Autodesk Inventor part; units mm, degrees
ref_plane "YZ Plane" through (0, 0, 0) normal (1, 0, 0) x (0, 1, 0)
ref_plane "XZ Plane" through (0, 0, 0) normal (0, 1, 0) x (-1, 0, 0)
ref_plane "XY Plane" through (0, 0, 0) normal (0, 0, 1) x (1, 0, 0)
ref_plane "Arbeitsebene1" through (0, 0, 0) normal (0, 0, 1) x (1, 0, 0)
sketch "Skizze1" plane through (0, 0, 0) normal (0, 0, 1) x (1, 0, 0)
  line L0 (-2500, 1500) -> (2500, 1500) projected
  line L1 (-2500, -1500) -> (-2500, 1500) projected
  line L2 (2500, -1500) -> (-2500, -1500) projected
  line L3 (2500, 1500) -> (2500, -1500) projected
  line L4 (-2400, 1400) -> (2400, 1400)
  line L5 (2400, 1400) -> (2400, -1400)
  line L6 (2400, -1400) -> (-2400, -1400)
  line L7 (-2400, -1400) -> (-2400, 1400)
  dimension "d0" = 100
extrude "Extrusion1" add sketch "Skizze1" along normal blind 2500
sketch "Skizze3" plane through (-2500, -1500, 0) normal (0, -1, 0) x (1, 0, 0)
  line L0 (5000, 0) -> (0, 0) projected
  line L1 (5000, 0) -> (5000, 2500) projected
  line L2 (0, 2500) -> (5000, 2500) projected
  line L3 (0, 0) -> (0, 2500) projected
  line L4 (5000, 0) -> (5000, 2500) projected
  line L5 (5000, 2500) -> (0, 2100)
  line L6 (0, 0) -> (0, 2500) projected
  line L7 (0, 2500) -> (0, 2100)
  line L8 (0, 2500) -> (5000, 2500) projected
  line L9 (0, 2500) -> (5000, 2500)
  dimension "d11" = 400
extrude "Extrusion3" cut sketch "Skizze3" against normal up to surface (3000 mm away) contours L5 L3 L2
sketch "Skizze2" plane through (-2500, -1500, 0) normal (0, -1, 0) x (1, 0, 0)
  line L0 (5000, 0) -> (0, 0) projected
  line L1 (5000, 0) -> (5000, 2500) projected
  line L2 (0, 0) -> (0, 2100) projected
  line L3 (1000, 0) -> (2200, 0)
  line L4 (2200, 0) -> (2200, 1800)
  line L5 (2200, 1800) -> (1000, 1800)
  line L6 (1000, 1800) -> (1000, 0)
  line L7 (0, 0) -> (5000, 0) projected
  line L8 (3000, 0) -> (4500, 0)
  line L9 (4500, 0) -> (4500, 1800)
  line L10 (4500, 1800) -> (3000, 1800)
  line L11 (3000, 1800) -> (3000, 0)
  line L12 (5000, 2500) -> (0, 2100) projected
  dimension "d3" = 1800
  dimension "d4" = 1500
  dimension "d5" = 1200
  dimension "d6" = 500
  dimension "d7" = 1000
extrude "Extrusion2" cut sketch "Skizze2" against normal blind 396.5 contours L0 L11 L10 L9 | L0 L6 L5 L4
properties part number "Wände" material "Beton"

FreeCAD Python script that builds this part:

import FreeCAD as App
import Part
import Sketcher
from FreeCAD import Vector
Q = App.Units.Quantity

doc = App.newDocument("Part")
body = doc.addObject("PartDesign::Body", "Body")

# Sketch on XY plane
sketch1 = body.newObject("Sketcher::SketchObject", "Sketch")
sketch1.AttachmentSupport = (doc.getObject("XY_Plane"), [""])
sketch1.MapMode = "FlatFace"
sketch1.addGeometry(Part.LineSegment(Vector(2500, 1500, 0), Vector(-2500, 1500, 0)), False)
sketch1.addGeometry(Part.LineSegment(Vector(-2500, 1500, 0), Vector(-2500, -1500, 0)), False)
sketch1.addGeometry(Part.LineSegment(Vector(-2500, -1500, 0), Vector(2500, -1500, 0)), False)
sketch1.addGeometry(Part.LineSegment(Vector(2500, -1500, 0), Vector(2500, 1500, 0)), False)
sketch1.addGeometry(Part.LineSegment(Vector(-2400, -1400, 0), Vector(-2400, 1400, 0)), False)
sketch1.addGeometry(Part.LineSegment(Vector(-2400, 1400, 0), Vector(2400, 1400, 0)), False)
sketch1.addGeometry(Part.LineSegment(Vector(2400, 1400, 0), Vector(2400, -1400, 0)), False)
sketch1.addGeometry(Part.LineSegment(Vector(2400, -1400, 0), Vector(-2400, -1400, 0)), False)
sketch1.addConstraint(Sketcher.Constraint("Coincident", 0, 2, 1, 1))
sketch1.addConstraint(Sketcher.Constraint("Coincident", 1, 2, 2, 1))
sketch1.addConstraint(Sketcher.Constraint("Coincident", 2, 2, 3, 1))
sketch1.addConstraint(Sketcher.Constraint("Coincident", 3, 2, 0, 1))
sketch1.addConstraint(Sketcher.Constraint("Coincident", 4, 2, 5, 1))
sketch1.addConstraint(Sketcher.Constraint("Coincident", 5, 2, 6, 1))
sketch1.addConstraint(Sketcher.Constraint("Coincident", 6, 2, 7, 1))
sketch1.addConstraint(Sketcher.Constraint("Coincident", 7, 2, 4, 1))
sketch1.addConstraint(Sketcher.Constraint("Horizontal", 0))
sketch1.addConstraint(Sketcher.Constraint("Vertical", 1))
sketch1.addConstraint(Sketcher.Constraint("Horizontal", 2))
sketch1.addConstraint(Sketcher.Constraint("Vertical", 3))
sketch1.addConstraint(Sketcher.Constraint("Vertical", 4))
sketch1.addConstraint(Sketcher.Constraint("Horizontal", 5))
sketch1.addConstraint(Sketcher.Constraint("Vertical", 6))
sketch1.addConstraint(Sketcher.Constraint("Horizontal", 7))
sketch1.addConstraint(Sketcher.Constraint("Symmetric", 0, 2, 2, 2, -1, 1))
sketch1.addConstraint(Sketcher.Constraint("Symmetric", 4, 2, 6, 2, -1, 1))
sketch1.addConstraint(Sketcher.Constraint("DistanceX", 0, 2, 4, 2, Q("100 mm")))
sketch1.addConstraint(Sketcher.Constraint("DistanceY", 4, 2, 0, 2, Q("100 mm")))
sketch1.addConstraint(Sketcher.Constraint("DistanceX", 0, 2, 0, 1, Q("5000 mm")))
sketch1.addConstraint(Sketcher.Constraint("DistanceY", 1, 2, 1, 1, Q("3000 mm")))
pad1 = body.newObject("PartDesign::Pad", "Pad")
pad1.Profile = sketch1
pad1.Length = 2500

# Sketch on XZ plane
sketch2 = body.newObject("Sketcher::SketchObject", "Sketch001")
sketch2.AttachmentSupport = (doc.getObject("XZ_Plane"), [""])
sketch2.MapMode = "FlatFace"
sketch2.AttachmentOffset = App.Placement(Vector(0, 0, 1500), App.Rotation())
sketch2.addGeometry(Part.LineSegment(Vector(-2500, 2100, 0), Vector(2500, 2500, 0)), False)
sketch2.addGeometry(Part.LineSegment(Vector(2500, 2500, 0), Vector(-2500, 2500, 0)), False)
sketch2.addGeometry(Part.LineSegment(Vector(-2500, 2500, 0), Vector(-2500, 2100, 0)), False)
sketch2.addConstraint(Sketcher.Constraint("Coincident", 0, 2, 1, 1))
sketch2.addConstraint(Sketcher.Constraint("Coincident", 1, 2, 2, 1))
sketch2.addConstraint(Sketcher.Constraint("Coincident", 2, 2, 0, 1))
sketch2.addConstraint(Sketcher.Constraint("Horizontal", 1))
sketch2.addConstraint(Sketcher.Constraint("Vertical", 2))
sketch2.addConstraint(Sketcher.Constraint("DistanceY", 2, 2, 2, 1, Q("400 mm")))
sketch2.addConstraint(Sketcher.Constraint("DistanceX", 1, 2, 1, 1, Q("5000 mm")))
sketch2.addConstraint(Sketcher.Constraint("DistanceX", -1, 1, 0, 2, Q("2500 mm")))
sketch2.addConstraint(Sketcher.Constraint("DistanceY", -1, 1, 0, 2, Q("2500 mm")))
pocket1 = body.newObject("PartDesign::Pocket", "Pocket")
pocket1.Profile = sketch2
pocket1.Length = 3000

# Sketch on XZ plane
sketch3 = body.newObject("Sketcher::SketchObject", "Sketch002")
sketch3.AttachmentSupport = (doc.getObject("XZ_Plane"), [""])
sketch3.MapMode = "FlatFace"
sketch3.AttachmentOffset = App.Placement(Vector(0, 0, 1500), App.Rotation())
sketch3.addGeometry(Part.LineSegment(Vector(500, 0, 0), Vector(2000, 0, 0)), False)
sketch3.addGeometry(Part.LineSegment(Vector(2000, 0, 0), Vector(2000, 1800, 0)), False)
sketch3.addGeometry(Part.LineSegment(Vector(2000, 1800, 0), Vector(500, 1800, 0)), False)
sketch3.addGeometry(Part.LineSegment(Vector(500, 1800, 0), Vector(500, 0, 0)), False)
sketch3.addGeometry(Part.LineSegment(Vector(-1500, 0, 0), Vector(-300, 0, 0)), False)
sketch3.addGeometry(Part.LineSegment(Vector(-300, 0, 0), Vector(-300, 1800, 0)), False)
sketch3.addGeometry(Part.LineSegment(Vector(-300, 1800, 0), Vector(-1500, 1800, 0)), False)
sketch3.addGeometry(Part.LineSegment(Vector(-1500, 1800, 0), Vector(-1500, 0, 0)), False)
sketch3.addConstraint(Sketcher.Constraint("Coincident", 0, 2, 1, 1))
sketch3.addConstraint(Sketcher.Constraint("Coincident", 1, 2, 2, 1))
sketch3.addConstraint(Sketcher.Constraint("Coincident", 2, 2, 3, 1))
sketch3.addConstraint(Sketcher.Constraint("Coincident", 3, 2, 0, 1))
sketch3.addConstraint(Sketcher.Constraint("Coincident", 4, 2, 5, 1))
sketch3.addConstraint(Sketcher.Constraint("Coincident", 5, 2, 6, 1))
sketch3.addConstraint(Sketcher.Constraint("Coincident", 6, 2, 7, 1))
sketch3.addConstraint(Sketcher.Constraint("Coincident", 7, 2, 4, 1))
sketch3.addConstraint(Sketcher.Constraint("Horizontal", 0))
sketch3.addConstraint(Sketcher.Constraint("Vertical", 1))
sketch3.addConstraint(Sketcher.Constraint("Horizontal", 2))
sketch3.addConstraint(Sketcher.Constraint("Vertical", 3))
sketch3.addConstraint(Sketcher.Constraint("Horizontal", 4))
sketch3.addConstraint(Sketcher.Constraint("Vertical", 5))
sketch3.addConstraint(Sketcher.Constraint("Horizontal", 6))
sketch3.addConstraint(Sketcher.Constraint("Vertical", 7))
sketch3.addConstraint(Sketcher.Constraint("PointOnObject", 0, 2, -1))
sketch3.addConstraint(Sketcher.Constraint("PointOnObject", 4, 2, -1))
sketch3.addConstraint(Sketcher.Constraint("Horizontal", 2, 2, 5, 2))
sketch3.addConstraint(Sketcher.Constraint("DistanceX", 0, 1, 0, 2, Q("1500 mm")))
sketch3.addConstraint(Sketcher.Constraint("DistanceX", 4, 1, 4, 2, Q("1200 mm")))
sketch3.addConstraint(Sketcher.Constraint("DistanceY", 1, 1, 1, 2, Q("1800 mm")))
sketch3.addConstraint(Sketcher.Constraint("DistanceX", -1, 1, 2, 2, Q("500 mm")))
sketch3.addConstraint(Sketcher.Constraint("DistanceX", 6, 2, -1, 1, Q("1500 mm")))
pocket2 = body.newObject("PartDesign::Pocket", "Pocket001")
pocket2.Profile = sketch3
pocket2.Length = 396.5

doc.recompute()
